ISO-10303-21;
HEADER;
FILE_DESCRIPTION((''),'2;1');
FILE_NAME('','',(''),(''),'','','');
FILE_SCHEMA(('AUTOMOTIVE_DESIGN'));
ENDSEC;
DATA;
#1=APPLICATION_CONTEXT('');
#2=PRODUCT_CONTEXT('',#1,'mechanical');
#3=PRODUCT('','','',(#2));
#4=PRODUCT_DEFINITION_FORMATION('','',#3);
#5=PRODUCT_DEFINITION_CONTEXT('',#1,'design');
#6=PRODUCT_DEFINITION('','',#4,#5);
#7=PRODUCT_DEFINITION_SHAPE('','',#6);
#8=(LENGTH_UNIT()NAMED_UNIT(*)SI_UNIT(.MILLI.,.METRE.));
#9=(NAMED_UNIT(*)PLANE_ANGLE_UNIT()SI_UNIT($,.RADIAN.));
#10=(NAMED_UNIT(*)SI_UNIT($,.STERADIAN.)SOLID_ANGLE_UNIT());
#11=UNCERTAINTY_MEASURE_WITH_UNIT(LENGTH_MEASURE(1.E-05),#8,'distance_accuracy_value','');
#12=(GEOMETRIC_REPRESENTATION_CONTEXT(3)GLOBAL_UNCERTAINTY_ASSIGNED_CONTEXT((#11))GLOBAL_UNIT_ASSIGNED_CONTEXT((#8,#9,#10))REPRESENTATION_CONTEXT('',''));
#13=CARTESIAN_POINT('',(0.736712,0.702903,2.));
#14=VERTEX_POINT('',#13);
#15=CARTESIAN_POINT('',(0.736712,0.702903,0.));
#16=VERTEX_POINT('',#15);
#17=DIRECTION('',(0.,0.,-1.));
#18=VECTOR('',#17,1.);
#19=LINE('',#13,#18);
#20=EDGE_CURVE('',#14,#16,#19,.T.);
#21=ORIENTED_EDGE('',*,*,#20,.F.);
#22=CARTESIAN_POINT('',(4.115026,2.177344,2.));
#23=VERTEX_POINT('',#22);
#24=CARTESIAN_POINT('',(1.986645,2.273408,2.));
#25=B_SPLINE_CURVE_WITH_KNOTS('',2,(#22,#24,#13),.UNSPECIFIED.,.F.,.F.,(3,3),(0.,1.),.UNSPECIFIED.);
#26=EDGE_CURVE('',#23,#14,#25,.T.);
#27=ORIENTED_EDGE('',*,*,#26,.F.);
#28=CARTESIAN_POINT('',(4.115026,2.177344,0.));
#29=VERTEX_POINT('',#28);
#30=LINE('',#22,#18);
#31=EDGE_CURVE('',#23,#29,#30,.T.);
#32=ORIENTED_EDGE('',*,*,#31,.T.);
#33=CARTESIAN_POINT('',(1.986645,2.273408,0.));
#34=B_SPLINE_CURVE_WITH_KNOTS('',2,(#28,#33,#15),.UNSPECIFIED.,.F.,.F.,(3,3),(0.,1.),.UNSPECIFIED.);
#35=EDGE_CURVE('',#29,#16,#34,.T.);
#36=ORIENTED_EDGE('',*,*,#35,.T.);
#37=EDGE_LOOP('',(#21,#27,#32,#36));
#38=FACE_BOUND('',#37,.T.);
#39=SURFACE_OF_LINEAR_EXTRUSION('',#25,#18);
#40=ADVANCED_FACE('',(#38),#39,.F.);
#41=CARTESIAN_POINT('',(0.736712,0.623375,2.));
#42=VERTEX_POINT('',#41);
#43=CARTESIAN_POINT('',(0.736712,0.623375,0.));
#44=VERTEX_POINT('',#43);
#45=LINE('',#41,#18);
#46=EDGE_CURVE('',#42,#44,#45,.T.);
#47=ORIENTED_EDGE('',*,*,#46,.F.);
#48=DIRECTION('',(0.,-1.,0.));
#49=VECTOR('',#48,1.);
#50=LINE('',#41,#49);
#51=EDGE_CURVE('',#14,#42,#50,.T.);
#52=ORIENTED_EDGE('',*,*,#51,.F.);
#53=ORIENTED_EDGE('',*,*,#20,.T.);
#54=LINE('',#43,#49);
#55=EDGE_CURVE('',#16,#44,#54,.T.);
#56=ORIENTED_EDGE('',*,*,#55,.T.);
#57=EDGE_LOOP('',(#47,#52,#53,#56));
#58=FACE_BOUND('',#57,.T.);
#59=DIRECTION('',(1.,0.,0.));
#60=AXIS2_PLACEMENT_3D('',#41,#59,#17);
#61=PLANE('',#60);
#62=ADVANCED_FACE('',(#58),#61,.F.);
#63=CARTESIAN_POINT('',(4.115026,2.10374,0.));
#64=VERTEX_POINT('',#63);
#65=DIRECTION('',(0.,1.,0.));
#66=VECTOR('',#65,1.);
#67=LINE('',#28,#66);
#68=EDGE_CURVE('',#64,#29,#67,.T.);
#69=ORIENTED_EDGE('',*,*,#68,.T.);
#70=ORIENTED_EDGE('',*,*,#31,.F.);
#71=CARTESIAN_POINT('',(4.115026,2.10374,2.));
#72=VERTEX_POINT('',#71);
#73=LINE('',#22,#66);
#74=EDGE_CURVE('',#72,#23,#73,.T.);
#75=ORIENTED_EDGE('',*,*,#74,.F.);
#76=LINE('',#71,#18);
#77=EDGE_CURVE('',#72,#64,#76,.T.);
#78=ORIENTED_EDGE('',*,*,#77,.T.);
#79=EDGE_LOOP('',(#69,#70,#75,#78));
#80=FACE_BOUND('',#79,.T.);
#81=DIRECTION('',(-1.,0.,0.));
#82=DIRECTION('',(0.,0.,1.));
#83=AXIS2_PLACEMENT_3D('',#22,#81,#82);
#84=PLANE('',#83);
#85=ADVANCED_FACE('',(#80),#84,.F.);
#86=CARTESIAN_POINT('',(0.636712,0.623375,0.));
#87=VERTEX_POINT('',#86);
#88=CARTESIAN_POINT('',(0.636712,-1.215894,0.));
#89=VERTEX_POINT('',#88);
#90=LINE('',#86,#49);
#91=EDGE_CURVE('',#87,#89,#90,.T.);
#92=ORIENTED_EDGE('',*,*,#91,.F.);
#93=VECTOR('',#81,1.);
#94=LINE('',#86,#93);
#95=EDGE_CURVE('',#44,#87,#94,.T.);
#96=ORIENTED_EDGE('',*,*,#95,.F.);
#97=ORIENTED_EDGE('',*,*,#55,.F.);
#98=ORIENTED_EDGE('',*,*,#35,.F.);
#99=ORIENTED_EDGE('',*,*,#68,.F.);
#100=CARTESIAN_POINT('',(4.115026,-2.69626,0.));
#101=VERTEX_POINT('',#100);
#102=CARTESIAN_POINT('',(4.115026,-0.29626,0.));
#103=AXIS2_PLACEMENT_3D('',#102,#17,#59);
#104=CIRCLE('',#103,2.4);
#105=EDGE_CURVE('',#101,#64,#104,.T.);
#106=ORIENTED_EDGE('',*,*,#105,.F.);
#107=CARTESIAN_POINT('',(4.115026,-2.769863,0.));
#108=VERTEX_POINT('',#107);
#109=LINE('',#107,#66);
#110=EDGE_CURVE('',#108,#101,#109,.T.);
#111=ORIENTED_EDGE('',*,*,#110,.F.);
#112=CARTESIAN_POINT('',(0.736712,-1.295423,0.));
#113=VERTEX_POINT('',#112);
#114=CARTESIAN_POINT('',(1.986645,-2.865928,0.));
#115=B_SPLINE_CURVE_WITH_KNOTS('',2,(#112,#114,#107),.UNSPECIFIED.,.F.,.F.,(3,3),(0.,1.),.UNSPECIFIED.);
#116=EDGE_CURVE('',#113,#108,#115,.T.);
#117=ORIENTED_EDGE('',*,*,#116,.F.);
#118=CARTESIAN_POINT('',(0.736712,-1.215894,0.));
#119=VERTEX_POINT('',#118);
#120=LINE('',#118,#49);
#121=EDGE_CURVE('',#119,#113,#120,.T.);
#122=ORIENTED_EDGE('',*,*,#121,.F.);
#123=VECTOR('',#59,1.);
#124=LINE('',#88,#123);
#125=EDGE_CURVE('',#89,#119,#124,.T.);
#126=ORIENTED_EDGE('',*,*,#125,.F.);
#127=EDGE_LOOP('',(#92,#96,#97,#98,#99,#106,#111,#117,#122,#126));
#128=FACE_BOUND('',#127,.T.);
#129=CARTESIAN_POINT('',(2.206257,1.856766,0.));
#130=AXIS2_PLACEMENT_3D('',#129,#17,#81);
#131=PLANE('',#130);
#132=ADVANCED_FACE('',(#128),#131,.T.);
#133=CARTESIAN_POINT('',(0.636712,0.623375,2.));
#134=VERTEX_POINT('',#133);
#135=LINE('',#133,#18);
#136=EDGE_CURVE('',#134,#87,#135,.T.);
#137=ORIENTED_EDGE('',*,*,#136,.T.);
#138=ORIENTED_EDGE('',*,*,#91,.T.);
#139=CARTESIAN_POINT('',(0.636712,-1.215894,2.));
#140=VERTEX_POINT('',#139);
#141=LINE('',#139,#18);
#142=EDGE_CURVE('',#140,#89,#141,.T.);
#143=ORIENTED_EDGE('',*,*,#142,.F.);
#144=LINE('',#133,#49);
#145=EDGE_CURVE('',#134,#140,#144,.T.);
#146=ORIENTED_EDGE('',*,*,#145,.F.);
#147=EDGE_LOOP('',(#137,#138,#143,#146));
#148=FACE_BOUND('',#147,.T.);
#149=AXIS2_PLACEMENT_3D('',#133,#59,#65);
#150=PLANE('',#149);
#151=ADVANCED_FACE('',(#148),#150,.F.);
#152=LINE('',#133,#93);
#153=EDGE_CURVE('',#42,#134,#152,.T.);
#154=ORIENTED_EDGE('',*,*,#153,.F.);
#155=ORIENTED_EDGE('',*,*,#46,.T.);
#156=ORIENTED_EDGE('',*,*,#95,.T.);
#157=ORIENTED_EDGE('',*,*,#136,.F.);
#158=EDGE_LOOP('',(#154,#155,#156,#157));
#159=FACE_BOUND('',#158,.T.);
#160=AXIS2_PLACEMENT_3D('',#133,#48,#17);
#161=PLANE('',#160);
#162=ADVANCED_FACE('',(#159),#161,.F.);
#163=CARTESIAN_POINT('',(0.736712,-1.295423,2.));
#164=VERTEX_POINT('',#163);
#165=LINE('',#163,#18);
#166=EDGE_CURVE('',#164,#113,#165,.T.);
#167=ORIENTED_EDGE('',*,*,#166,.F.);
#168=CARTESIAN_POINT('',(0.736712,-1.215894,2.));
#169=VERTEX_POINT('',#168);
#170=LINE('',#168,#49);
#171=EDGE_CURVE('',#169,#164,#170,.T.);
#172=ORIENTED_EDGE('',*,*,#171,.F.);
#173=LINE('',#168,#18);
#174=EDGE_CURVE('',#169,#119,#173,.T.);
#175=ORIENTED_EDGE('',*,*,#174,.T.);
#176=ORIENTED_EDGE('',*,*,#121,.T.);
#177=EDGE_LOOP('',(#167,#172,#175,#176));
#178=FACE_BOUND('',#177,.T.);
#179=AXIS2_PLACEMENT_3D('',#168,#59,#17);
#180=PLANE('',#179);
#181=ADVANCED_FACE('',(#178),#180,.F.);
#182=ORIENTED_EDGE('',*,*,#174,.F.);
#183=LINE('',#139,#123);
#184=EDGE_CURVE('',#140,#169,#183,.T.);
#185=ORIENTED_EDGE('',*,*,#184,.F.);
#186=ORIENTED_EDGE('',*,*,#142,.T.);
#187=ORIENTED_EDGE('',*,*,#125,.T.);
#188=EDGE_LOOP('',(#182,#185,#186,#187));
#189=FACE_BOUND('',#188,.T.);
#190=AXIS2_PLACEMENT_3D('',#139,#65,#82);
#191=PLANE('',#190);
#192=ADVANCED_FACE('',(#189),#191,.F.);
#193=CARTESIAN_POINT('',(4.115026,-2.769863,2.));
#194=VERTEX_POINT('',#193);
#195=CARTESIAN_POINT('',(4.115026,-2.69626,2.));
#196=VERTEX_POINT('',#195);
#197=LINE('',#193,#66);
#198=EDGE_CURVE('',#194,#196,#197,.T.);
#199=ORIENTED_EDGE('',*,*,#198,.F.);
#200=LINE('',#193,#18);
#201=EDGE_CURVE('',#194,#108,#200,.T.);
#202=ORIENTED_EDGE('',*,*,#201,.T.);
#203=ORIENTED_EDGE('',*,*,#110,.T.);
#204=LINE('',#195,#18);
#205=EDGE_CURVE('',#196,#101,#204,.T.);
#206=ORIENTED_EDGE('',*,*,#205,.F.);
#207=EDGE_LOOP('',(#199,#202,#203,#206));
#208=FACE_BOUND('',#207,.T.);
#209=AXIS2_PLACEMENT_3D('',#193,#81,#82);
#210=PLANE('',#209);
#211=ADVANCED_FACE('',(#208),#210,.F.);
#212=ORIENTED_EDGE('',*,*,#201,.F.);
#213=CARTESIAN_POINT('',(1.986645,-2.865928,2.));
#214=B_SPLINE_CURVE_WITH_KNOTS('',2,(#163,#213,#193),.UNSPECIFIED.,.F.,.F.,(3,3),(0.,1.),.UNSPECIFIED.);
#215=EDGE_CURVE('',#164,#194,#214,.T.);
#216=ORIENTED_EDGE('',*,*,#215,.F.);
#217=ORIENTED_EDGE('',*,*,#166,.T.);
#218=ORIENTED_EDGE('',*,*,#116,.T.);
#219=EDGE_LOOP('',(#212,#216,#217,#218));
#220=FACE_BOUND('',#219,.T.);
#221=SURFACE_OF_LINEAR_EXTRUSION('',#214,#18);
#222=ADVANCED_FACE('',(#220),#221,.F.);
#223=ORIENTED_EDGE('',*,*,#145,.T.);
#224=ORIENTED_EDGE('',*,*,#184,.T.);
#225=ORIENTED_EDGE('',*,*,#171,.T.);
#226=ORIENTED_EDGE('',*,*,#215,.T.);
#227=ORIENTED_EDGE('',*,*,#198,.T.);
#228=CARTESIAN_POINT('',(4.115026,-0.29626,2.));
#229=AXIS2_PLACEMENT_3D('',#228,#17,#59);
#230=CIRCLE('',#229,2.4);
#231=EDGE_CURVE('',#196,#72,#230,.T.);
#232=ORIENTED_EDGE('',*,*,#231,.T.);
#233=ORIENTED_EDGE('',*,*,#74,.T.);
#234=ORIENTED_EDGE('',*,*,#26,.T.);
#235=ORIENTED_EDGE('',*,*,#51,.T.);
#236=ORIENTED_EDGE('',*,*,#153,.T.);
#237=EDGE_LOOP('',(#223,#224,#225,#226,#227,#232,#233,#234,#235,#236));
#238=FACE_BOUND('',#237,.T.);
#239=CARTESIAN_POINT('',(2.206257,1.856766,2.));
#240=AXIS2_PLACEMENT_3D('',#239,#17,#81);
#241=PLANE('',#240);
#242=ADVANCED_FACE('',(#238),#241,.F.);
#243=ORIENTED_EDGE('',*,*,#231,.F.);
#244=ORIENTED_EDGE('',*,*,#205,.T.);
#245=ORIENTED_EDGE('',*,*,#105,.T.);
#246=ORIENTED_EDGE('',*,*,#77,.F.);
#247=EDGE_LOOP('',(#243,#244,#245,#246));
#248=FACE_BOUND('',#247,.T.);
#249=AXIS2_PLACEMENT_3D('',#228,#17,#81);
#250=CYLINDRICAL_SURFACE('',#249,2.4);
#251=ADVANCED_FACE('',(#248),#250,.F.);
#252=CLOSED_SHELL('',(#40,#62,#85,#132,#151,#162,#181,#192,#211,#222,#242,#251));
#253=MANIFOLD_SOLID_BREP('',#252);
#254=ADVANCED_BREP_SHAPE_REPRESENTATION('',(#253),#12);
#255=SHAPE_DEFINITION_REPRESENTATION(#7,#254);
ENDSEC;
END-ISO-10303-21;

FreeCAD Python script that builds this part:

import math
import FreeCAD as App
import Part
import Sketcher

V = App.Vector
Q = App.Units.Quantity

doc = App.newDocument("Part")
body = doc.addObject("PartDesign::Body", "Body")

sketch1 = body.newObject("Sketcher::SketchObject", "Sketch")
sketch1.AttachmentSupport = (doc.getObject("XY_Plane"), [""])
sketch1.MapMode = "FlatFace"
sketch1.addGeometry([
    Part.LineSegment(V(4.115026, 2.10374, 0), V(4.115026, 2.177344, 0)),
    Part.BSplineCurve([V(4.115026, 2.177344, 0), V(1.986645, 2.273408, 0), V(0.736712, 0.702903, 0)], [3, 3], [0, 1], False, 2, [1, 1, 1], False),
    Part.LineSegment(V(0.736712, 0.702903, 0), V(0.736712, 0.623375, 0)),
    Part.LineSegment(V(0.736712, 0.623375, 0), V(0.636712, 0.623375, 0)),
    Part.LineSegment(V(0.636712, 0.623375, 0), V(0.636712, -1.215894, 0)),
    Part.LineSegment(V(0.636712, -1.215894, 0), V(0.736712, -1.215894, 0)),
    Part.LineSegment(V(0.736712, -1.215894, 0), V(0.736712, -1.295423, 0)),
    Part.BSplineCurve([V(4.115026, -2.769863, 0), V(1.986645, -2.865928, 0), V(0.736712, -1.295423, 0)], [3, 3], [0, 1], False, 2, [1, 1, 1], False),
    Part.LineSegment(V(4.115026, -2.769863, 0), V(4.115026, -2.69626, 0)),
    Part.ArcOfCircle(Part.Circle(V(4.115026, -0.29626, 0), V(0, 0, 1), 2.4), math.radians(90), math.radians(270)),
], False)
sketch1.addConstraint([
    Sketcher.Constraint("Block", 1),
    Sketcher.Constraint("Block", 7),
    Sketcher.Constraint("Coincident", 0, 2, 1, 1),
    Sketcher.Constraint("Coincident", 1, 2, 2, 1),
    Sketcher.Constraint("Coincident", 2, 2, 3, 1),
    Sketcher.Constraint("Coincident", 3, 2, 4, 1),
    Sketcher.Constraint("Coincident", 4, 2, 5, 1),
    Sketcher.Constraint("Coincident", 5, 2, 6, 1),
    Sketcher.Constraint("Coincident", 6, 2, 7, 2),
    Sketcher.Constraint("Coincident", 7, 1, 8, 1),
    Sketcher.Constraint("Coincident", 8, 2, 9, 2),
    Sketcher.Constraint("Coincident", 9, 1, 0, 1),
    Sketcher.Constraint("Vertical", 0),
    Sketcher.Constraint("Vertical", 2),
    Sketcher.Constraint("Horizontal", 3),
    Sketcher.Constraint("Vertical", 4),
    Sketcher.Constraint("Horizontal", 5),
    Sketcher.Constraint("Vertical", 6),
    Sketcher.Constraint("Vertical", 8),
    Sketcher.Constraint("Vertical", 9, 3, 0, 2),
    Sketcher.Constraint("Equal", 2, 6),
    Sketcher.Constraint("Equal", 0, 8),
    Sketcher.Constraint("Radius", 9, Q("2.4 mm")),
    Sketcher.Constraint("DistanceX", 3, 2, 3, 1, Q("0.1 mm")),
    Sketcher.Constraint("DistanceY", 2, 2, 2, 1, Q("0.079528 mm")),
])
pad1 = body.newObject("PartDesign::Pad", "Pad")
pad1.Profile = sketch1
pad1.Length = 2

doc.recompute()
